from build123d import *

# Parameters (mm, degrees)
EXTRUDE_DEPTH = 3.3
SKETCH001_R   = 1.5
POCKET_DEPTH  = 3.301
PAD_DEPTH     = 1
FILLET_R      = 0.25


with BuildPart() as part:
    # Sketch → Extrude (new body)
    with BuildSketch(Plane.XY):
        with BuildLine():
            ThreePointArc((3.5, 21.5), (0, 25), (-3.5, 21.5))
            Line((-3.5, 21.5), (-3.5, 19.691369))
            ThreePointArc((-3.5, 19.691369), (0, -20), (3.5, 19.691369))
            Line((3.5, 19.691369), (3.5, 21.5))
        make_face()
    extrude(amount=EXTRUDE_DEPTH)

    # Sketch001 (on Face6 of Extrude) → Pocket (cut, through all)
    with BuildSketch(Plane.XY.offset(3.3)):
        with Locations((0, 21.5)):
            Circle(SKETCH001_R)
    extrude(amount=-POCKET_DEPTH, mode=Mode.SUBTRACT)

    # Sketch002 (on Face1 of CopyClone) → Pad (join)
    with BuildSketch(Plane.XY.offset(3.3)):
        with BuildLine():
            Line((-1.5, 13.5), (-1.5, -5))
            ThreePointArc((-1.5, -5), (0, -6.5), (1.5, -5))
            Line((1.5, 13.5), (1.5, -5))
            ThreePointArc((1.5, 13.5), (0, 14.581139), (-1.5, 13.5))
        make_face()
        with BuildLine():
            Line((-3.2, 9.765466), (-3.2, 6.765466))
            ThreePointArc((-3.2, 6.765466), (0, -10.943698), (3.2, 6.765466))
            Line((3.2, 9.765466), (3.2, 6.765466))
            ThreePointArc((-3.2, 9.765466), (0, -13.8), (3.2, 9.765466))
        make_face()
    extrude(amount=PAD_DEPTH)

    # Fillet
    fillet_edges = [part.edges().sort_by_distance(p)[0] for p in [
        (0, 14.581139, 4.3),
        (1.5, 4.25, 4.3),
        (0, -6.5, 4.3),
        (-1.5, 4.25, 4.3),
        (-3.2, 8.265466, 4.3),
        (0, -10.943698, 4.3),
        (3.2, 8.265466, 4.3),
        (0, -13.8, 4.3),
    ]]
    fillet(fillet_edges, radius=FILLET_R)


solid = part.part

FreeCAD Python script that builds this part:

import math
import FreeCAD as App
import Part
import Sketcher
from FreeCAD import Vector


def edges_at(feature, points):
    """Names of the edges that pass closest to the given points."""
    edges = feature.Shape.Edges
    near = lambda p: min(range(len(edges)), key=lambda i: edges[i].distToShape(Part.Vertex(*p))[0])
    return sorted({f"Edge{near(p) + 1}" for p in points})

doc = App.newDocument("Part")
body = doc.addObject("PartDesign::Body", "Body")

sketch1 = body.newObject("Sketcher::SketchObject", "Sketch")
sketch1.AttachmentSupport = (doc.getObject("XY_Plane"), [""])
sketch1.MapMode = "FlatFace"
sketch1.addGeometry([
    Part.ArcOfCircle(Part.Circle(Vector(0, 21.5, 0), Vector(0, 0, 1), 3.5), math.radians(0), math.radians(180)),
    Part.LineSegment(Vector(-3.5, 21.5, 0), Vector(-3.5, 19.7, 0)),
    Part.ArcOfCircle(Part.Circle(Vector(0, 0, 0), Vector(0, 0, 1), 20), math.radians(100), math.radians(440)),
    Part.LineSegment(Vector(3.5, 19.7, 0), Vector(3.5, 21.5, 0)),
], False)
sketch1.addConstraint([
    Sketcher.Constraint("Tangent", 0, 2, 1, 1),
    Sketcher.Constraint("Coincident", 1, 2, 2, 1),
    Sketcher.Constraint("Coincident", 2, 2, 3, 1),
    Sketcher.Constraint("Tangent", 3, 2, 0, 1),
    Sketcher.Constraint("Vertical", 1),
    Sketcher.Constraint("Vertical", 3),
    Sketcher.Constraint("Coincident", 2, 3, -1, 1),
    Sketcher.Constraint("PointOnObject", 0, 3, -2),
    Sketcher.Constraint("Radius", 2, 20.0),
    Sketcher.Constraint("Radius", 0, 3.5),
    Sketcher.Constraint("DistanceY", -1, 1, 0, 3, 21.5),
])
pad1 = body.newObject("PartDesign::Pad", "Pad")
pad1.Profile = sketch1
pad1.Length = 3.3

sketch2 = body.newObject("Sketcher::SketchObject", "Sketch001")
sketch2.AttachmentSupport = (doc.getObject("XY_Plane"), [""])
sketch2.MapMode = "FlatFace"
sketch2.AttachmentOffset = App.Placement(Vector(0, 0, 3.3), App.Rotation())
sketch2.addGeometry(Part.Circle(Vector(0, 21.5, 0), Vector(0, 0, 1), 1.5), False)
sketch2.addConstraint([
    Sketcher.Constraint("PointOnObject", 0, 3, -2),
    Sketcher.Constraint("Diameter", 0, 3.0),
    Sketcher.Constraint("DistanceY", -1, 1, 0, 3, 21.5),
])
pocket1 = body.newObject("PartDesign::Pocket", "Pocket")
pocket1.Profile = sketch2
pocket1.Type = "ThroughAll"

sketch3 = body.newObject("Sketcher::SketchObject", "Sketch002")
sketch3.AttachmentSupport = (doc.getObject("XY_Plane"), [""])
sketch3.MapMode = "FlatFace"
sketch3.AttachmentOffset = App.Placement(Vector(0, 0, 3.3), App.Rotation())
sketch3.addGeometry([
    Part.LineSegment(Vector(-1.5, 13.5, 0), Vector(-1.5, -5, 0)),
    Part.ArcOfCircle(Part.Circle(Vector(0, -5, 0), Vector(0, 0, 1), 1.5), math.radians(180), math.radians(360)),
    Part.LineSegment(Vector(1.5, -5, 0), Vector(1.5, 13.5, 0)),
    Part.ArcOfCircle(Part.Circle(Vector(0, 13, 0), Vector(0, 0, 1), 1.6), math.radians(18), math.radians(162)),
    Part.LineSegment(Vector(-3.2, 6.8, 0), Vector(-3.2, 9.8, 0)),
    Part.ArcOfCircle(Part.Circle(Vector(0, -1.8, 0), Vector(0, 0, 1), 12), math.radians(105), math.radians(435)),
    Part.LineSegment(Vector(3.2, 9.8, 0), Vector(3.2, 6.8, 0)),
    Part.ArcOfCircle(Part.Circle(Vector(0, -1.8, 0), Vector(0, 0, 1), 9.1), math.radians(110), math.radians(430)),
], False)
sketch3.addConstraint([
    Sketcher.Constraint("Tangent", 0, 2, 1, 1),
    Sketcher.Constraint("Tangent", 1, 2, 2, 1),
    Sketcher.Constraint("Coincident", 2, 2, 3, 1),
    Sketcher.Constraint("Coincident", 3, 2, 0, 1),
    Sketcher.Constraint("Coincident", 4, 2, 5, 1),
    Sketcher.Constraint("Coincident", 5, 2, 6, 1),
    Sketcher.Constraint("Coincident", 6, 2, 7, 2),
    Sketcher.Constraint("Coincident", 7, 1, 4, 1),
    Sketcher.Constraint("Vertical", 0),
    Sketcher.Constraint("Vertical", 2),
    Sketcher.Constraint("Vertical", 4),
    Sketcher.Constraint("Vertical", 6),
    Sketcher.Constraint("Coincident", 7, 3, 5, 3),
    Sketcher.Constraint("Symmetric", 2, 2, 3, 2, -2),
    Sketcher.Constraint("Symmetric", 4, 2, 5, 2, -2),
    Sketcher.Constraint("Radius", 5, 12.0),
    Sketcher.Constraint("Radius", 1, 1.5),
    Sketcher.Constraint("DistanceY", 4, 1, 4, 2, 3.0),
    Sketcher.Constraint("DistanceY", 0, 2, 0, 1, 18.5),
    Sketcher.Constraint("DistanceY", 1, 3, -1, 1, 5.0),
    Sketcher.Constraint("DistanceY", -1, 1, 3, 3, 13.0),
    Sketcher.Constraint("DistanceY", 5, 3, -1, 1, 1.8),
    Sketcher.Constraint("DistanceX", 4, 2, -1, 1, 3.2),
])
pad2 = body.newObject("PartDesign::Pad", "Pad001")
pad2.Profile = sketch3
pad2.Length = 1
doc.recompute()

fillet = body.newObject("PartDesign::Fillet", "Fillet")
fillet.Base = (pad2, edges_at(pad2, [
    (0, 14.581, 4.3),
    (1.5, 4.25, 4.3),
    (0, -6.5, 4.3),
    (-1.5, 4.25, 4.3),
    (-3.2, 8.265, 4.3),
    (0, -10.944, 4.3),
    (3.2, 8.265, 4.3),
    (0, -13.8, 4.3),
]))
fillet.Radius = 0.25

doc.recompute()
